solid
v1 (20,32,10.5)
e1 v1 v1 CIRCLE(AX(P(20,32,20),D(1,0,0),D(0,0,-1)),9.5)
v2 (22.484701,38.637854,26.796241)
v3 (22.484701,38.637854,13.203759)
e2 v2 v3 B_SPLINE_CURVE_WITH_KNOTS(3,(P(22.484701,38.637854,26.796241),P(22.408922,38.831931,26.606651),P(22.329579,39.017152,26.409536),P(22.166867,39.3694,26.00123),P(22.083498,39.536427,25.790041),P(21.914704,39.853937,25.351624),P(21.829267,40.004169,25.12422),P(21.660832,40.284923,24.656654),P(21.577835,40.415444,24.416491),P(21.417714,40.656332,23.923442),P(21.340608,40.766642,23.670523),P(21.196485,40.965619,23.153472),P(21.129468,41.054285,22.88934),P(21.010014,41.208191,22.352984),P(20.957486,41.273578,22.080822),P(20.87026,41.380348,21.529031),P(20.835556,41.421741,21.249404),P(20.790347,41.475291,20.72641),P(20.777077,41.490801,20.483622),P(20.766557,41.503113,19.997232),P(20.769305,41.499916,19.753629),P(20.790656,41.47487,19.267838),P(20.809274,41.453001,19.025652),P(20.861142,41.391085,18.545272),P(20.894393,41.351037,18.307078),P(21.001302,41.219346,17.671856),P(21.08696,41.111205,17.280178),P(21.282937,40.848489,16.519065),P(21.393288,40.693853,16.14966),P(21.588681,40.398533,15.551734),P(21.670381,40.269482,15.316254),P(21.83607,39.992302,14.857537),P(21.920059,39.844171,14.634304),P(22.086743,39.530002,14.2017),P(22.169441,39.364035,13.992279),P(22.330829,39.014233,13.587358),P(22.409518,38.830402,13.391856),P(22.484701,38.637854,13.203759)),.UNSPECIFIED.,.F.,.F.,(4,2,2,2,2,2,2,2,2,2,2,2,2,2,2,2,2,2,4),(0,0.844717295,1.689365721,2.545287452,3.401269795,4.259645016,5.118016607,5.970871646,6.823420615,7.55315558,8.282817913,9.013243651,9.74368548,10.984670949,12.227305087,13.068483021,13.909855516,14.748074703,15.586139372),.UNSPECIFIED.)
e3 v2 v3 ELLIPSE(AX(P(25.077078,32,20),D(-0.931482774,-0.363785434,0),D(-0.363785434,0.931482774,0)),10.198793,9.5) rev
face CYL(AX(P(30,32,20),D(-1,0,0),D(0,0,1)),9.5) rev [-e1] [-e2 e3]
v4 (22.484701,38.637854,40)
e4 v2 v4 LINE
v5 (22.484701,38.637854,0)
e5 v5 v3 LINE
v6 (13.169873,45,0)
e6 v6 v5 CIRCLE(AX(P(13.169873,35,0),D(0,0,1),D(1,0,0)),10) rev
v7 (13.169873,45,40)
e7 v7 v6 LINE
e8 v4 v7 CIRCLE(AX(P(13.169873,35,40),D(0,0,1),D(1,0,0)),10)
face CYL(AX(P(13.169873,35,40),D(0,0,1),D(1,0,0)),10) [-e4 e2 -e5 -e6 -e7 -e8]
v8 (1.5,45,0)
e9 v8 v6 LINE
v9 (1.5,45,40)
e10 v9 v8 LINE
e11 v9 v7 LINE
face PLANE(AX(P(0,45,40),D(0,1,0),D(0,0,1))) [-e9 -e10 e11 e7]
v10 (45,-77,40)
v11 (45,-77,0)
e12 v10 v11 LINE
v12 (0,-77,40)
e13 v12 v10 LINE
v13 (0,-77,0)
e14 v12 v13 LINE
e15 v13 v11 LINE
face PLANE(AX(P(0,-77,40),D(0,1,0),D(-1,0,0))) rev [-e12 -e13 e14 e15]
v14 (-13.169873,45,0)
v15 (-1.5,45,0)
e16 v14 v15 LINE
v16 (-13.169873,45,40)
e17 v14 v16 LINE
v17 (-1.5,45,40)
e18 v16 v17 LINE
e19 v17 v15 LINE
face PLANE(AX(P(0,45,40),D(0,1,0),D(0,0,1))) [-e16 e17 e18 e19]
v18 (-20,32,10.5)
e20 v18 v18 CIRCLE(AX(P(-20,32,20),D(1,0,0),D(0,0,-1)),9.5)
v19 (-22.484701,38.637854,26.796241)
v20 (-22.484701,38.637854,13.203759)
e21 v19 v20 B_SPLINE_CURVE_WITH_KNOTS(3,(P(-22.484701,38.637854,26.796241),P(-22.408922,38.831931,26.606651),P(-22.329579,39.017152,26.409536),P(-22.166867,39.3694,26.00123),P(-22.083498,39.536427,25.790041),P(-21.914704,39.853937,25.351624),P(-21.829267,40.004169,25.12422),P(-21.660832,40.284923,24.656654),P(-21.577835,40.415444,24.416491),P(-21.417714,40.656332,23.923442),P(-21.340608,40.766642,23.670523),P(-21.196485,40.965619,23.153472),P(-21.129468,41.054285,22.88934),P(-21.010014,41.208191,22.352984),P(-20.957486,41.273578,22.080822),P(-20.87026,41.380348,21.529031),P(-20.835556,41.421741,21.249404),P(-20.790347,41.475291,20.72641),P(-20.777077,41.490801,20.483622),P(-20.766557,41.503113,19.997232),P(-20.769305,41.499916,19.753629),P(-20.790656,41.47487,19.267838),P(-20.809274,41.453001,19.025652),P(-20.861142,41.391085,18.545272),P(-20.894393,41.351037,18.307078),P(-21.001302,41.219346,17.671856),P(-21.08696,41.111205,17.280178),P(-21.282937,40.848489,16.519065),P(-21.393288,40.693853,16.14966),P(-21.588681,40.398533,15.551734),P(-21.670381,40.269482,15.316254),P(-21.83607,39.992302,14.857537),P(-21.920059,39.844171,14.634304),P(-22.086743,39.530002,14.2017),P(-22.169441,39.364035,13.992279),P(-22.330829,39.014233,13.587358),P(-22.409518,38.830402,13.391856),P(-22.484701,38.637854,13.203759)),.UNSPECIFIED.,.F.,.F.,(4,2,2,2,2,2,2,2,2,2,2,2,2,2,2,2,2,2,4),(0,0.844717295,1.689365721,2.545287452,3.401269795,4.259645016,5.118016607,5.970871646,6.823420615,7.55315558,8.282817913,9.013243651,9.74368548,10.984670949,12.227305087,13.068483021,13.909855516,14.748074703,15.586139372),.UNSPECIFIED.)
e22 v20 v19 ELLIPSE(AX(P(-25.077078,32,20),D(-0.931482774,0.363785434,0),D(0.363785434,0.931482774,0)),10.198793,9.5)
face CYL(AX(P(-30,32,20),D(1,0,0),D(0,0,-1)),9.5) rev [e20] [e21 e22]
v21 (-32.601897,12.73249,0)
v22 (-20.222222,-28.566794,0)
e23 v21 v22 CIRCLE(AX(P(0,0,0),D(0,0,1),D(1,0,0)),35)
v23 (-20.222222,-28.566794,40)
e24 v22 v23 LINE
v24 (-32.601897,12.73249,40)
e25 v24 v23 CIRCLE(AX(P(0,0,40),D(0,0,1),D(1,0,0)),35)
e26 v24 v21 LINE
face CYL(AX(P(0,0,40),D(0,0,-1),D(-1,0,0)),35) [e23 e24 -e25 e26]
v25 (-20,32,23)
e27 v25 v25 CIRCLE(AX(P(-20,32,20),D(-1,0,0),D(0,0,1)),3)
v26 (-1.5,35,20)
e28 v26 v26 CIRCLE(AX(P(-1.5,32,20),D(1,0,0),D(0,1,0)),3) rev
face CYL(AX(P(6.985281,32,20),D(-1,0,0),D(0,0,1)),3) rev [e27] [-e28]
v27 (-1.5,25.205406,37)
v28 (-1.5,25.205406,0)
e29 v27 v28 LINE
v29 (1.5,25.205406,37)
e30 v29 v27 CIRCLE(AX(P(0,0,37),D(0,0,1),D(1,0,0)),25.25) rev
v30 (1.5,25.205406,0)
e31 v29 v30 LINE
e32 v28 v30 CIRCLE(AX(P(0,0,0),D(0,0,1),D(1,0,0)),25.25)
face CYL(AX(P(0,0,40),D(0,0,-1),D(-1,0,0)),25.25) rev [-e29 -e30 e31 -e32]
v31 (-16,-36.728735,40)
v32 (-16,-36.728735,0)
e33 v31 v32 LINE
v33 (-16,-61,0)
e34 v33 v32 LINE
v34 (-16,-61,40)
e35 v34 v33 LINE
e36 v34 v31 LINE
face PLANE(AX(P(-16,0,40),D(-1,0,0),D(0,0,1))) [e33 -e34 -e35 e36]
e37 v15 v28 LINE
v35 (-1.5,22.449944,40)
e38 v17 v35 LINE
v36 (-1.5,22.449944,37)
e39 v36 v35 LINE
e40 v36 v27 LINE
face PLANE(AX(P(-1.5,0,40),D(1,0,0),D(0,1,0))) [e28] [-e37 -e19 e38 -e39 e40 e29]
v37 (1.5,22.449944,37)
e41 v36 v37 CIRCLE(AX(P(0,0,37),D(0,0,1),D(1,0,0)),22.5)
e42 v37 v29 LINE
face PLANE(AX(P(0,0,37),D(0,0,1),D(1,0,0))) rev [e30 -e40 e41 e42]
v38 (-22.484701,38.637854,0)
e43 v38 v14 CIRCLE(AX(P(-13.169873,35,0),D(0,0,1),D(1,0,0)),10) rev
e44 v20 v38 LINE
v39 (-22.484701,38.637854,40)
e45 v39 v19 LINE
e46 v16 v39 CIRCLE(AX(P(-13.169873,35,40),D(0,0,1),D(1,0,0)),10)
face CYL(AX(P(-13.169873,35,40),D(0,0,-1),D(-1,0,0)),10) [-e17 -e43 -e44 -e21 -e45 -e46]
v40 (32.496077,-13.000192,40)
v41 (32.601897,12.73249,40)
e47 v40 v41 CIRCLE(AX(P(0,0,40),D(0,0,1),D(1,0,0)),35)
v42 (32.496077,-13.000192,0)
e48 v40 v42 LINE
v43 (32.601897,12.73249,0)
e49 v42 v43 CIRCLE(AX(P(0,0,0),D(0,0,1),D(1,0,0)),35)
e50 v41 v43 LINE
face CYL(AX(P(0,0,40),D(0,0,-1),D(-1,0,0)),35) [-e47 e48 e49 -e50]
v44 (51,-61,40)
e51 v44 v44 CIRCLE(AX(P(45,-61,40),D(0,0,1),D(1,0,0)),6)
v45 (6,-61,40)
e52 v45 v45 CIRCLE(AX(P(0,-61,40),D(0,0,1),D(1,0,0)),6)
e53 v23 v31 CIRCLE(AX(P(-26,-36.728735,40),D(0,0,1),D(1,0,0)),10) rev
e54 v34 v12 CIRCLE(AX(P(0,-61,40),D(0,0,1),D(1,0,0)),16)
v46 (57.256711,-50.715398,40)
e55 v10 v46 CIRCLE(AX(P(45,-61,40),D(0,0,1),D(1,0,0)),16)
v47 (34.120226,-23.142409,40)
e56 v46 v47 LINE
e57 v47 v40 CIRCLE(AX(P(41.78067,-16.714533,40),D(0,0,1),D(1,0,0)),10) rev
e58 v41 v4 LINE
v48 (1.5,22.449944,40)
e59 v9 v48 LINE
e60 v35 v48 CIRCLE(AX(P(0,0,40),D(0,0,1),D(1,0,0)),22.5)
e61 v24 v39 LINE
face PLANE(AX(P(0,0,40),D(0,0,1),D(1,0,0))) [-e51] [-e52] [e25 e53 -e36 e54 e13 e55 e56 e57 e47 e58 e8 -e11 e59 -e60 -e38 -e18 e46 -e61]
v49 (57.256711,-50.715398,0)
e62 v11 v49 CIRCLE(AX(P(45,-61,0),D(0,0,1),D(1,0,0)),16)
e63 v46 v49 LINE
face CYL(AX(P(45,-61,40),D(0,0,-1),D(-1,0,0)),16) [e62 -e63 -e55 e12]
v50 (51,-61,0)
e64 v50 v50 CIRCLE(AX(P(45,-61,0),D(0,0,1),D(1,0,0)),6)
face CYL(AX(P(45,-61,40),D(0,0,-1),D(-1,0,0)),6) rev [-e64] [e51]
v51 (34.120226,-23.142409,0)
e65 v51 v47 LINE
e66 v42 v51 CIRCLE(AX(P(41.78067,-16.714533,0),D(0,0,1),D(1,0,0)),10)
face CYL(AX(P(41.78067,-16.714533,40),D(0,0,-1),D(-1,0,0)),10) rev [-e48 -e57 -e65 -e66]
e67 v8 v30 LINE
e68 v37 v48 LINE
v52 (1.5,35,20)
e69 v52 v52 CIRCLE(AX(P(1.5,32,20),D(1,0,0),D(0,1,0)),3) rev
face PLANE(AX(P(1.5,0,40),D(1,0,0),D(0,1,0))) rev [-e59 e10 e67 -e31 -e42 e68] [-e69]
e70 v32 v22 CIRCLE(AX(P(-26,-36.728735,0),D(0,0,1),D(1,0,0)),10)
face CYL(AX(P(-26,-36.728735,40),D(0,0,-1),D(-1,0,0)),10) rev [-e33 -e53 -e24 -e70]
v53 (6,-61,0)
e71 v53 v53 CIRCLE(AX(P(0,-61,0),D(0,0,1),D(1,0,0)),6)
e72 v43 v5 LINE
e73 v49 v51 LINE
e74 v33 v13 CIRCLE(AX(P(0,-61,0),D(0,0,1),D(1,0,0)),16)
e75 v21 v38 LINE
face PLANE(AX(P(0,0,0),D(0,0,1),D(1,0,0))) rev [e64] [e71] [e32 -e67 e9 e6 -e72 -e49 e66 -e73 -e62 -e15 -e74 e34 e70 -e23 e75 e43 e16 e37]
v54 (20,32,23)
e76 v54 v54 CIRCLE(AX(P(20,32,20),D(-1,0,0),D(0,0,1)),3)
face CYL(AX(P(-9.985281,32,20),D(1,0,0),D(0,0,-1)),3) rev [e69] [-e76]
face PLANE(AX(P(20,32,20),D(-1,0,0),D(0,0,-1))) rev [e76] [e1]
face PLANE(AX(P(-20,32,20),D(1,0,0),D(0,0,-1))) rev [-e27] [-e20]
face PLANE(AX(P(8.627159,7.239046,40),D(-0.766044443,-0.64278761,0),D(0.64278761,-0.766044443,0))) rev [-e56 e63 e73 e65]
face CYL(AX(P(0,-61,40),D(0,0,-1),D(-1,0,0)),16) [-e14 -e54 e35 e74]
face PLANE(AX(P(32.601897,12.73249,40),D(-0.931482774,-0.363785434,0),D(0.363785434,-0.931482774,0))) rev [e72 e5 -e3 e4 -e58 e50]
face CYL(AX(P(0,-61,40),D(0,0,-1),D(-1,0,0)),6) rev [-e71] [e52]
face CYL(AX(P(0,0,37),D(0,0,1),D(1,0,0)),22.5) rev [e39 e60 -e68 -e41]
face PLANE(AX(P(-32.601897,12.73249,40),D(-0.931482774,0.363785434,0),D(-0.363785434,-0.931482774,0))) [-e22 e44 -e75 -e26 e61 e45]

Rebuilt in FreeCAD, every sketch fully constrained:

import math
import FreeCAD as App
import Part
import Sketcher
Q = App.Units.Quantity


def edges_at(feature, points):
    """Names of the edges that pass closest to the given points."""
    edges = feature.Shape.Edges
    near = lambda p: min(range(len(edges)), key=lambda i: edges[i].distToShape(Part.Vertex(*p))[0])
    return sorted({f"Edge{near(p) + 1}" for p in points})

doc = App.newDocument("Part")
body = doc.addObject("PartDesign::Body", "Body")

sketch1 = body.newObject("Sketcher::SketchObject", "Sketch")
sketch1.AttachmentSupport = (doc.getObject("XY_Plane"), [""])
sketch1.MapMode = "FlatFace"
sketch1.addGeometry(Part.LineSegment(App.Vector(-16, -31.1, 0), App.Vector(-16, -61, 0)), False)
sketch1.addGeometry(Part.ArcOfCircle(Part.Circle(App.Vector(0, -61, 0), App.Vector(0, 0, 1), 16), math.radians(180), math.radians(270)), False)
sketch1.addGeometry(Part.LineSegment(App.Vector(0, -77, 0), App.Vector(45, -77, 0)), False)
sketch1.addGeometry(Part.ArcOfCircle(Part.Circle(App.Vector(45, -61, 0), App.Vector(0, 0, 1), 16), math.radians(-90), math.radians(40)), False)
sketch1.addGeometry(Part.LineSegment(App.Vector(57.3, -50.7, 0), App.Vector(29.9, -18.1, 0)), False)
sketch1.addGeometry(Part.ArcOfCircle(Part.Circle(App.Vector(0, 0, 0), App.Vector(0, 0, 1), 35), math.radians(-31), math.radians(21)), False)
sketch1.addGeometry(Part.LineSegment(App.Vector(32.6, 12.7, 0), App.Vector(20, 45, 0)), False)
sketch1.addGeometry(Part.LineSegment(App.Vector(20, 45, 0), App.Vector(1.5, 45, 0)), False)
sketch1.addGeometry(Part.LineSegment(App.Vector(1.5, 45, 0), App.Vector(1.5, 25.2, 0)), False)
sketch1.addGeometry(Part.ArcOfCircle(Part.Circle(App.Vector(0, 0, 0), App.Vector(0, 0, 1), 25.2), math.radians(93), math.radians(447)), False)
sketch1.addGeometry(Part.LineSegment(App.Vector(-1.5, 25.2, 0), App.Vector(-1.5, 45, 0)), False)
sketch1.addGeometry(Part.LineSegment(App.Vector(-1.5, 45, 0), App.Vector(-20, 45, 0)), False)
sketch1.addGeometry(Part.LineSegment(App.Vector(-20, 45, 0), App.Vector(-32.6, 12.7, 0)), False)
sketch1.addGeometry(Part.ArcOfCircle(Part.Circle(App.Vector(0, 0, 0), App.Vector(0, 0, 1), 35), math.radians(159), math.radians(243)), False)
sketch1.addGeometry(Part.Circle(App.Vector(0, -61, 0), App.Vector(0, 0, 1), 6), False)
sketch1.addGeometry(Part.Circle(App.Vector(45, -61, 0), App.Vector(0, 0, 1), 6), False)
sketch1.addConstraint(Sketcher.Constraint("Tangent", 0, 2, 1, 1))
sketch1.addConstraint(Sketcher.Constraint("Tangent", 1, 2, 2, 1))
sketch1.addConstraint(Sketcher.Constraint("Tangent", 2, 2, 3, 1))
sketch1.addConstraint(Sketcher.Constraint("Tangent", 3, 2, 4, 1))
sketch1.addConstraint(Sketcher.Constraint("Coincident", 4, 2, 5, 1))
sketch1.addConstraint(Sketcher.Constraint("Tangent", 5, 2, 6, 1))
sketch1.addConstraint(Sketcher.Constraint("Coincident", 6, 2, 7, 1))
sketch1.addConstraint(Sketcher.Constraint("Coincident", 7, 2, 8, 1))
sketch1.addConstraint(Sketcher.Constraint("Coincident", 8, 2, 9, 2))
sketch1.addConstraint(Sketcher.Constraint("Coincident", 9, 1, 10, 1))
sketch1.addConstraint(Sketcher.Constraint("Coincident", 10, 2, 11, 1))
sketch1.addConstraint(Sketcher.Constraint("Coincident", 11, 2, 12, 1))
sketch1.addConstraint(Sketcher.Constraint("Tangent", 12, 2, 13, 1))
sketch1.addConstraint(Sketcher.Constraint("Coincident", 13, 2, 0, 1))
sketch1.addConstraint(Sketcher.Constraint("Vertical", 0))
sketch1.addConstraint(Sketcher.Constraint("Horizontal", 2))
sketch1.addConstraint(Sketcher.Constraint("Horizontal", 7))
sketch1.addConstraint(Sketcher.Constraint("Vertical", 8))
sketch1.addConstraint(Sketcher.Constraint("Vertical", 10))
sketch1.addConstraint(Sketcher.Constraint("Horizontal", 11))
sketch1.addConstraint(Sketcher.Constraint("Coincident", 5, 3, -1, 1))
sketch1.addConstraint(Sketcher.Constraint("Coincident", 9, 3, -1, 1))
sketch1.addConstraint(Sketcher.Constraint("Coincident", 13, 3, -1, 1))
sketch1.addConstraint(Sketcher.Constraint("Coincident", 14, 3, 1, 3))
sketch1.addConstraint(Sketcher.Constraint("Coincident", 15, 3, 3, 3))
sketch1.addConstraint(Sketcher.Constraint("Equal", 1, 3))
sketch1.addConstraint(Sketcher.Constraint("Equal", 5, 13))
sketch1.addConstraint(Sketcher.Constraint("Equal", 14, 15))
sketch1.addConstraint(Sketcher.Constraint("Symmetric", 7, 2, 10, 2, -2))
sketch1.addConstraint(Sketcher.Constraint("PointOnObject", 1, 3, -2))
sketch1.addConstraint(Sketcher.Constraint("Horizontal", 5, 2, 12, 2))
sketch1.addConstraint(Sketcher.Constraint("Diameter", 14, Q("12 mm")))
sketch1.addConstraint(Sketcher.Constraint("Radius", 1, Q("16 mm")))
sketch1.addConstraint(Sketcher.Constraint("Radius", 5, Q("35 mm")))
sketch1.addConstraint(Sketcher.Constraint("DistanceX", 2, 1, 2, 2, Q("45 mm")))
sketch1.addConstraint(Sketcher.Constraint("Angle", 4, Q("130 deg")))
sketch1.addConstraint(Sketcher.Constraint("Radius", 9, Q("25.25 mm")))
sketch1.addConstraint(Sketcher.Constraint("DistanceX", 7, 2, 7, 1, Q("18.5 mm")))
sketch1.addConstraint(Sketcher.Constraint("DistanceY", 1, 3, -1, 1, Q("61 mm")))
sketch1.addConstraint(Sketcher.Constraint("DistanceX", -1, 1, 6, 2, Q("20 mm")))
sketch1.addConstraint(Sketcher.Constraint("DistanceY", -1, 1, 6, 2, Q("45 mm")))
pad1 = body.newObject("PartDesign::Pad", "Pad")
pad1.Profile = sketch1
pad1.Length = 40
doc.recompute()

fillet = body.newObject("PartDesign::Fillet", "Fillet")
fillet.Base = (pad1, edges_at(pad1, [
    (-20, 45, 20),
    (20, 45, 20),
    (29.928, -18.147, 20),
    (-16, -31.129, 20),
]))
fillet.Radius = 10

sketch2 = body.newObject("Sketcher::SketchObject", "Sketch001")
sketch2.AttachmentSupport = (doc.getObject("YZ_Plane"), [""])
sketch2.MapMode = "FlatFace"
sketch2.AttachmentOffset = App.Placement(App.Vector(0, 0, -20), App.Rotation())
sketch2.addGeometry(Part.Circle(App.Vector(32, 20, 0), App.Vector(0, 0, 1), 10), False)
sketch2.addConstraint(Sketcher.Constraint("Diameter", 0, Q("19 mm")))
sketch2.addConstraint(Sketcher.Constraint("DistanceX", -1, 1, 0, 3, Q("32 mm")))
sketch2.addConstraint(Sketcher.Constraint("DistanceY", -1, 1, 0, 3, Q("20 mm")))
pocket1 = body.newObject("PartDesign::Pocket", "Pocket")
pocket1.Profile = sketch2
pocket1.Length = 10

sketch3 = body.newObject("Sketcher::SketchObject", "Sketch002")
sketch3.AttachmentSupport = (doc.getObject("YZ_Plane"), [""])
sketch3.MapMode = "FlatFace"
sketch3.AttachmentOffset = App.Placement(App.Vector(0, 0, -20), App.Rotation())
sketch3.addGeometry(Part.Circle(App.Vector(32, 20, 0), App.Vector(0, 0, 1), 3), False)
sketch3.addConstraint(Sketcher.Constraint("Diameter", 0, Q("6 mm")))
sketch3.addConstraint(Sketcher.Constraint("DistanceX", -1, 1, 0, 3, Q("32 mm")))
sketch3.addConstraint(Sketcher.Constraint("DistanceY", -1, 1, 0, 3, Q("20 mm")))
pocket2 = body.newObject("PartDesign::Pocket", "Pocket001")
pocket2.Profile = sketch3
pocket2.Length = 21.5
pocket2.Reversed = True
doc.recompute()

mirrored = body.newObject("PartDesign::Mirrored", "Mirrored")
mirrored.Originals = [pocket1, pocket2]
mirrored.MirrorPlane = (doc.getObject("YZ_Plane"), [""])
body.Tip = mirrored

sketch4 = body.newObject("Sketcher::SketchObject", "Sketch003")
sketch4.AttachmentSupport = (doc.getObject("XY_Plane"), [""])
sketch4.MapMode = "FlatFace"
sketch4.AttachmentOffset = App.Placement(App.Vector(0, 0, 37), App.Rotation())
sketch4.addGeometry(Part.ArcOfCircle(Part.Circle(App.Vector(0, 0, 0), App.Vector(0, 0, 1), 22.5), math.radians(94), math.radians(360)), False)
sketch4.addGeometry(Part.LineSegment(App.Vector(-1.5, 22.4, 0), App.Vector(-1.5, 25.2, 0)), False)
sketch4.addGeometry(Part.ArcOfCircle(Part.Circle(App.Vector(0, 0, 0), App.Vector(0, 0, 1), 25.2), math.radians(93), math.radians(360)), False)
sketch4.addGeometry(Part.ArcOfCircle(Part.Circle(App.Vector(0, 0, 0), App.Vector(0, 0, 1), 25.3), math.radians(0), math.radians(87)), False)
sketch4.addGeometry(Part.LineSegment(App.Vector(1.5, 25.2, 0), App.Vector(1.5, 22.4, 0)), False)
sketch4.addGeometry(Part.ArcOfCircle(Part.Circle(App.Vector(0, 0, 0), App.Vector(0, 0, 1), 22.5), math.radians(0), math.radians(86)), False)
sketch4.addConstraint(Sketcher.Constraint("Coincident", 0, 1, 1, 1))
sketch4.addConstraint(Sketcher.Constraint("Coincident", 1, 2, 2, 1))
sketch4.addConstraint(Sketcher.Constraint("Tangent", 2, 2, 3, 1))
sketch4.addConstraint(Sketcher.Constraint("Coincident", 3, 2, 4, 1))
sketch4.addConstraint(Sketcher.Constraint("Coincident", 4, 2, 5, 2))
sketch4.addConstraint(Sketcher.Constraint("Tangent", 5, 1, 0, 2))
sketch4.addConstraint(Sketcher.Constraint("Vertical", 1))
sketch4.addConstraint(Sketcher.Constraint("Vertical", 4))
sketch4.addConstraint(Sketcher.Constraint("Coincident", 0, 3, -1, 1))
sketch4.addConstraint(Sketcher.Constraint("Coincident", 2, 3, -1, 1))
sketch4.addConstraint(Sketcher.Constraint("Equal", 2, 3))
sketch4.addConstraint(Sketcher.Constraint("Equal", 0, 5))
sketch4.addConstraint(Sketcher.Constraint("PointOnObject", 2, 2, -1))
sketch4.addConstraint(Sketcher.Constraint("PointOnObject", 5, 1, -1))
sketch4.addConstraint(Sketcher.Constraint("Horizontal", 1, 2, 3, 2))
sketch4.addConstraint(Sketcher.Constraint("Radius", 0, Q("22.5 mm")))
sketch4.addConstraint(Sketcher.Constraint("Radius", 2, Q("25.25 mm")))
sketch4.addConstraint(Sketcher.Constraint("DistanceX", 1, 2, 3, 2, Q("3 mm")))
pad2 = body.newObject("PartDesign::Pad", "Pad001")
pad2.Profile = sketch4
pad2.Length = 3

doc.recompute()
